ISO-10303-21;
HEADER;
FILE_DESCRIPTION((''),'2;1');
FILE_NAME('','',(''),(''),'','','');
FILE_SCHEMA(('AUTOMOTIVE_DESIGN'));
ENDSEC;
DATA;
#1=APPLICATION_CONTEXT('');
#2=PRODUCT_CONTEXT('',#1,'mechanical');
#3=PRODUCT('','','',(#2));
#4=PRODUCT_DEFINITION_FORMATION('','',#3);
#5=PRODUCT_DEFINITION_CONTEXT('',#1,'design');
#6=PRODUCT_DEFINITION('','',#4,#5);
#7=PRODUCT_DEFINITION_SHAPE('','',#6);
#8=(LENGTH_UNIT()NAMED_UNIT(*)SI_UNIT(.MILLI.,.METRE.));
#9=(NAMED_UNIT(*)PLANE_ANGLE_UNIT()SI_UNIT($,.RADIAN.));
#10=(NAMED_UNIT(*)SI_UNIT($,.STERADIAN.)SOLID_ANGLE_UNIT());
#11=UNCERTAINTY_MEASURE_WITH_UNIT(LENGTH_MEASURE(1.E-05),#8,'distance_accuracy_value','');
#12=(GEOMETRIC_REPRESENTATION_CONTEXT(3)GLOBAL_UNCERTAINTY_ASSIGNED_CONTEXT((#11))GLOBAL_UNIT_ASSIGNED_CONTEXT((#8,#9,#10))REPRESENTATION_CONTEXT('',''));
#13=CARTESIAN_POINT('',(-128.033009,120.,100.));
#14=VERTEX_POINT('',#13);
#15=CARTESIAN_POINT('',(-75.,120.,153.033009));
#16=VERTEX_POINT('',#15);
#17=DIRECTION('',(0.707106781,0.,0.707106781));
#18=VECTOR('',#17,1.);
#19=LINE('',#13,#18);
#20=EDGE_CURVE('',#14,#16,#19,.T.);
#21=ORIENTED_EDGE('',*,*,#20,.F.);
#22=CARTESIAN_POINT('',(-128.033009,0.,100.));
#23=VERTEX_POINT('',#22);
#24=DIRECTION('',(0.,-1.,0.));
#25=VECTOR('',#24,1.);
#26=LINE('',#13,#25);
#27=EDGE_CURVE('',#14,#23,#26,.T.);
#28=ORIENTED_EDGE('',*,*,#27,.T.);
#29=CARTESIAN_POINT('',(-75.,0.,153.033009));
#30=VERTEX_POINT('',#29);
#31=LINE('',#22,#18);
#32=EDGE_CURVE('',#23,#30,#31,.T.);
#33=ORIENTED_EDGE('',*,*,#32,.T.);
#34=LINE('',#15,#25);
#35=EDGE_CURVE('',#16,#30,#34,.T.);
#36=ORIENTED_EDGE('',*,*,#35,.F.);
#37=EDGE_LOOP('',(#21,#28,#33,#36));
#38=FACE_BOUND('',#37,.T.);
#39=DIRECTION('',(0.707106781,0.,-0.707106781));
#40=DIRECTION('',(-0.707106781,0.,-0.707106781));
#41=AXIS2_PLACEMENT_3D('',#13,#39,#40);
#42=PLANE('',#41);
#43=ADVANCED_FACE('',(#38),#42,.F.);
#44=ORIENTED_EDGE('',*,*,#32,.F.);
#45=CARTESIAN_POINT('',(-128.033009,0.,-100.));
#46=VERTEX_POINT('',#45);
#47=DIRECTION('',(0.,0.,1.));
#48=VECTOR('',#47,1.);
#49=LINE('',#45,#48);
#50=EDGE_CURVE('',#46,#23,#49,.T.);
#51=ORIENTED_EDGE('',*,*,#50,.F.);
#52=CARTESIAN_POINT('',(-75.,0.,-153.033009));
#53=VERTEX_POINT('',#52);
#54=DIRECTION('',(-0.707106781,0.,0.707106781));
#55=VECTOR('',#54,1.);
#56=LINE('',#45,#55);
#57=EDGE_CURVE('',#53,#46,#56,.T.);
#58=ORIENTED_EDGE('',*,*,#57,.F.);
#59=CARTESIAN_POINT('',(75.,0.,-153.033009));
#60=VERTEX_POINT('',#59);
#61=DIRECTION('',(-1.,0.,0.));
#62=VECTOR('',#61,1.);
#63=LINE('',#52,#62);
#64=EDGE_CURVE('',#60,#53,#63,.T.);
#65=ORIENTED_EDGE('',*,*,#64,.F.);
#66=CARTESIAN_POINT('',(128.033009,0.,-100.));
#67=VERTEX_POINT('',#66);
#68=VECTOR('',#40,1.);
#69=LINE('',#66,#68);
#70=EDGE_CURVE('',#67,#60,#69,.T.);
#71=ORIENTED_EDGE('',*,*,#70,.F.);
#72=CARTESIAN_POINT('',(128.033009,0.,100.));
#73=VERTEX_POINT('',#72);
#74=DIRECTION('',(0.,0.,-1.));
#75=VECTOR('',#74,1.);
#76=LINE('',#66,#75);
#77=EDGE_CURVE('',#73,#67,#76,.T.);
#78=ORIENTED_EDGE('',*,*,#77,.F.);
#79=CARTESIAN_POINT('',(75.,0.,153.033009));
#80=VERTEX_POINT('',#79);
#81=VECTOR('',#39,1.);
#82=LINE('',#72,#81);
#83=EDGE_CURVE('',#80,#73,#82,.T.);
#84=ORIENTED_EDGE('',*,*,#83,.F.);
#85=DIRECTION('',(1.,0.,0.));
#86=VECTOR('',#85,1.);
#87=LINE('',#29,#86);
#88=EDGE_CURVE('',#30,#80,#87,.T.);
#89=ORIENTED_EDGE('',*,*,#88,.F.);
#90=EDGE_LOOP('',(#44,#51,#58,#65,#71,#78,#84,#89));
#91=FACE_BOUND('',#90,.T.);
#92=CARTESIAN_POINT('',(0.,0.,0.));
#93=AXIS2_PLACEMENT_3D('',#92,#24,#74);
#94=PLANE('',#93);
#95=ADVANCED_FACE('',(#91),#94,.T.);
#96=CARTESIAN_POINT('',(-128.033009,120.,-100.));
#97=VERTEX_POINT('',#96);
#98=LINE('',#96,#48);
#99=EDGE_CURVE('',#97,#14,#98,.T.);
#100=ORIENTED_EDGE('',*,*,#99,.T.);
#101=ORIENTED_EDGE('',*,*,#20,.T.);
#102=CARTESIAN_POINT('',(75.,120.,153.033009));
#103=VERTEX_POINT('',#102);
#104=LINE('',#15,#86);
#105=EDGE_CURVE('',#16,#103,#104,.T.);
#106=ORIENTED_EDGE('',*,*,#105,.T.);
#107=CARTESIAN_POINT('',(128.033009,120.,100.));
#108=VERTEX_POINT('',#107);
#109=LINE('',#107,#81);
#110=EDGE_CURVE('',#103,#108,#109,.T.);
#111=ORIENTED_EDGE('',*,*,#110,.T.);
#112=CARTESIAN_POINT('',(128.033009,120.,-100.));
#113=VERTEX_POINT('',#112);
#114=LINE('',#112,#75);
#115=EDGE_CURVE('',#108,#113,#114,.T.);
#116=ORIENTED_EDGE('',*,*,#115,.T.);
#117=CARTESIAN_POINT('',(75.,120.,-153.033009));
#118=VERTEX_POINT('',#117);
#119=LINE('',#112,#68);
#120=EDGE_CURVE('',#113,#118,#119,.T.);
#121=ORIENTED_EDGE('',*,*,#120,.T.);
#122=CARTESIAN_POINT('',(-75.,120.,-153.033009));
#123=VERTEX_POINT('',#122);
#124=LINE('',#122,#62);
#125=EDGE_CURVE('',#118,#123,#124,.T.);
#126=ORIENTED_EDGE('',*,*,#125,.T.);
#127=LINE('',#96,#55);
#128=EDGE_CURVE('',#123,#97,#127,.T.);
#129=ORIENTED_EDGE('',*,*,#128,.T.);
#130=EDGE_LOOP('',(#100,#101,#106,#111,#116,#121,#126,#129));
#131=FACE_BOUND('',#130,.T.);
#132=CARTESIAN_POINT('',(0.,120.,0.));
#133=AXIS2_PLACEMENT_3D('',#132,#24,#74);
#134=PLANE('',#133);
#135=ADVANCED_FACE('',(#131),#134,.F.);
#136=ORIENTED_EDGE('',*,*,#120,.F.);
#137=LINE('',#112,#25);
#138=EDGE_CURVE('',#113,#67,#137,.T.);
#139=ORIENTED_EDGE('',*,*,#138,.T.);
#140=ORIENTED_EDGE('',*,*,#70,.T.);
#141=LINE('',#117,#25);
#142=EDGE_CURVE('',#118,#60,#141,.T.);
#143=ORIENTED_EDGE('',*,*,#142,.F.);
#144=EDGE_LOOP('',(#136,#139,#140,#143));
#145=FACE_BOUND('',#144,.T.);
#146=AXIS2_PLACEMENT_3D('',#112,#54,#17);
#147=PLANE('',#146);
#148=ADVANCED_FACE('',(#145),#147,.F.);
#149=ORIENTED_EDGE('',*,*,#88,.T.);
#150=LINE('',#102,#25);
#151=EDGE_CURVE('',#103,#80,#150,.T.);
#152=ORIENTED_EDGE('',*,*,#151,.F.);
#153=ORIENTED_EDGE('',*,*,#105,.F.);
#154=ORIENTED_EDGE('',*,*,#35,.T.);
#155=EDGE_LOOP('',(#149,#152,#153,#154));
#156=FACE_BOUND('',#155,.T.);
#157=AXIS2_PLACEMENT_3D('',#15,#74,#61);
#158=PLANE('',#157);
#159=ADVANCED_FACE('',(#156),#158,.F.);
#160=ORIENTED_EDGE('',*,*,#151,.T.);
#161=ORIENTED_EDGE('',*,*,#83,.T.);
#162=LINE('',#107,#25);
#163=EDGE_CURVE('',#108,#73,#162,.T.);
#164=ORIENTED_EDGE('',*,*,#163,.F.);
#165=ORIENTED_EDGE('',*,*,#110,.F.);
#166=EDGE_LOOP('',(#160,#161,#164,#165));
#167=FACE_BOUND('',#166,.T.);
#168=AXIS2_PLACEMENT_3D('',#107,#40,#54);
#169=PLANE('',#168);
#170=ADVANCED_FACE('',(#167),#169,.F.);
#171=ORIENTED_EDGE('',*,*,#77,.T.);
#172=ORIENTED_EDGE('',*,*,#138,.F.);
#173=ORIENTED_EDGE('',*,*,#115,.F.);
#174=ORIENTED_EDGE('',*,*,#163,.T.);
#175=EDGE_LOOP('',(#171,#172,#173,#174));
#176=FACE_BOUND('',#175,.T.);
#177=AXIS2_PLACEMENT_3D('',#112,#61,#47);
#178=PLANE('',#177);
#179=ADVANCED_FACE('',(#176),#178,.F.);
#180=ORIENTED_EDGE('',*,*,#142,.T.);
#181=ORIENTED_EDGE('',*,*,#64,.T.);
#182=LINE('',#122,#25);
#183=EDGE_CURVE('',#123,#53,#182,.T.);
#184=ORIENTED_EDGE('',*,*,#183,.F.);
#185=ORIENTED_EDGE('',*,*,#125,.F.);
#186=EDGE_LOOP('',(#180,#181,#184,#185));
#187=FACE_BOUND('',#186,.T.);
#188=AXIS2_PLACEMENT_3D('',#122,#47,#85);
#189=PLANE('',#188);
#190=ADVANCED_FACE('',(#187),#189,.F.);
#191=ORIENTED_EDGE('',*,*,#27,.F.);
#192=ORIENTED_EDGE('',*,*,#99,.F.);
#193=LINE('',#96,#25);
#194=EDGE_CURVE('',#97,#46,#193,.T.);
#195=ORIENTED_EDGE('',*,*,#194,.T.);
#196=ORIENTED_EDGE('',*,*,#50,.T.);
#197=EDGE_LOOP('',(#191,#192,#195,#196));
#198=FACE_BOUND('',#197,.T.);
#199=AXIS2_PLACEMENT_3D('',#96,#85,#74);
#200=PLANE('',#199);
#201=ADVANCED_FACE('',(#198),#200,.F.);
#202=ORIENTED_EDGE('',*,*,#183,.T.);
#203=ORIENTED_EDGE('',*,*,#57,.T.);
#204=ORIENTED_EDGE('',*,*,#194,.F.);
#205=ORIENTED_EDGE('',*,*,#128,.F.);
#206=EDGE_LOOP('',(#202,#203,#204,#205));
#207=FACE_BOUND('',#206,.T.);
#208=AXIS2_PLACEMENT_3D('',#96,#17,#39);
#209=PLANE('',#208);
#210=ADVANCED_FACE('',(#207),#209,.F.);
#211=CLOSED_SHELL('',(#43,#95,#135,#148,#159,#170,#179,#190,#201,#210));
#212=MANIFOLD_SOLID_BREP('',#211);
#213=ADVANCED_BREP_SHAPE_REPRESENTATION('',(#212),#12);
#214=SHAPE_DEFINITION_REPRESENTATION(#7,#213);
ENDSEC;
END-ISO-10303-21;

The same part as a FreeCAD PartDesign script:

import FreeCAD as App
import Part
import Sketcher

V = App.Vector
Q = App.Units.Quantity

doc = App.newDocument("Part")
body = doc.addObject("PartDesign::Body", "Body")

# Sketch on XZ plane
sketch1 = doc.addObject("Sketcher::SketchObject", "Sketch")
body.addObject(sketch1)
sketch1.AttachmentSupport = (doc.XZ_Plane, [""])
sketch1.MapMode = "FlatFace"
sketch1.addGeometry([
    Part.LineSegment(V(-128, -100, 0), V(-128, 100, 0)),  # 0
    Part.LineSegment(V(-128, 100, 0), V(-75, 153, 0)),  # 1
    Part.LineSegment(V(-75, 153, 0), V(75, 153, 0)),  # 2
    Part.LineSegment(V(75, 153, 0), V(128, 100, 0)),  # 3
    Part.LineSegment(V(128, 100, 0), V(128, -100, 0)),  # 4
    Part.LineSegment(V(128, -100, 0), V(75, -153, 0)),  # 5
    Part.LineSegment(V(75, -153, 0), V(-75, -153, 0)),  # 6
    Part.LineSegment(V(-75, -153, 0), V(-128, -100, 0)),  # 7
], False)
sketch1.addConstraint([
    Sketcher.Constraint("Coincident", 0, 2, 1, 1),
    Sketcher.Constraint("Coincident", 1, 2, 2, 1),
    Sketcher.Constraint("Coincident", 2, 2, 3, 1),
    Sketcher.Constraint("Coincident", 3, 2, 4, 1),
    Sketcher.Constraint("Coincident", 4, 2, 5, 1),
    Sketcher.Constraint("Coincident", 5, 2, 6, 1),
    Sketcher.Constraint("Coincident", 6, 2, 7, 1),
    Sketcher.Constraint("Coincident", 7, 2, 0, 1),
    Sketcher.Constraint("Vertical", 0),
    Sketcher.Constraint("Horizontal", 2),
    Sketcher.Constraint("Vertical", 4),
    Sketcher.Constraint("Horizontal", 6),
    Sketcher.Constraint("Symmetric", 0, 2, 4, 2, -1, 1),
    Sketcher.Constraint("Symmetric", 1, 2, 5, 2, -1, 1),
    Sketcher.Constraint("Perpendicular", 1, 3),
    Sketcher.Constraint("Perpendicular", 5, 7),
    Sketcher.Constraint("Horizontal", 0, 2, 3, 2),
    Sketcher.Constraint("Horizontal", 4, 2, 7, 2),
    Sketcher.Constraint("Vertical", 2, 2, 5, 2),
    Sketcher.Constraint("DistanceX", 2, 1, 2, 2, Q("150 mm")),
    Sketcher.Constraint("DistanceY", 0, 1, 0, 2, Q("200 mm")),
    Sketcher.Constraint("Distance", 1, Q("75 mm")),
])
pad1 = doc.addObject("PartDesign::Pad", "Pad")
body.addObject(pad1)
pad1.Profile = sketch1
pad1.Length = 120
pad1.Reversed = True

doc.recompute()
